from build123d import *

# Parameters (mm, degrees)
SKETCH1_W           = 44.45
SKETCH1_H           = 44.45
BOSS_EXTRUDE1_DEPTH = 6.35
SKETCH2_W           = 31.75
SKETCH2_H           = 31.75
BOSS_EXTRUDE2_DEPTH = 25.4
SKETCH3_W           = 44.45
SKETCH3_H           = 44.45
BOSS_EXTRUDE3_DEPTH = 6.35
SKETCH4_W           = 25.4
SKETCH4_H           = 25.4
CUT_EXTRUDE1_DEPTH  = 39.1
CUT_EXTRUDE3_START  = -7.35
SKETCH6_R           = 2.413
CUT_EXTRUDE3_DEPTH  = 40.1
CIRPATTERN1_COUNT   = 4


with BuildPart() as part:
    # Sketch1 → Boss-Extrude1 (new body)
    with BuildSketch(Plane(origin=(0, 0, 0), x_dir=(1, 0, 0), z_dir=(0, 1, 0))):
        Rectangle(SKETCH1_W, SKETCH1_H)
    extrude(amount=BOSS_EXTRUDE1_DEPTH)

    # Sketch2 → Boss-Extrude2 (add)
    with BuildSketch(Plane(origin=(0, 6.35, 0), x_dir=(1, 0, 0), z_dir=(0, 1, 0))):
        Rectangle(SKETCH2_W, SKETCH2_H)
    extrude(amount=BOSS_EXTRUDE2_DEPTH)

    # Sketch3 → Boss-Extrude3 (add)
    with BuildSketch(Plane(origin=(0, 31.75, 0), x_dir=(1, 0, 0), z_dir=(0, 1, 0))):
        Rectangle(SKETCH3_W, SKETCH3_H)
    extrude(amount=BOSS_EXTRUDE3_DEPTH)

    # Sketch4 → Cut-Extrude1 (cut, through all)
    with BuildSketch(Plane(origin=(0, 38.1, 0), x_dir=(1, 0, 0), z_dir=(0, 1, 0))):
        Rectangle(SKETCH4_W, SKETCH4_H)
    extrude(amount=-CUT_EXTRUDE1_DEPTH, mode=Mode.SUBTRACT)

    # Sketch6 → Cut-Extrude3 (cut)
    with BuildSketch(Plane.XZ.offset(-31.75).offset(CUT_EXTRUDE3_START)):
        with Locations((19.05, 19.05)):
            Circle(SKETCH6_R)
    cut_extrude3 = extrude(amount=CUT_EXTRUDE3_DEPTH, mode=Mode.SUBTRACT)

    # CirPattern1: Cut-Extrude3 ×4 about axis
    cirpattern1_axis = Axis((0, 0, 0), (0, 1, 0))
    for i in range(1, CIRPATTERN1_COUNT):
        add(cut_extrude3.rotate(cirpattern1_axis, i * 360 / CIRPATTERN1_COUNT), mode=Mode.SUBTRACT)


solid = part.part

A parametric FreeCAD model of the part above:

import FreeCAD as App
import Part
import Sketcher
from FreeCAD import Vector
Q = App.Units.Quantity

doc = App.newDocument("Part")
params = doc.addObject("Spreadsheet::Sheet", "Params")
for row, (alias, value) in enumerate([
    ("sketch1_width", "1.75 in"),
    ("pad1_length", "0.25 in"),
    ("sketch2_width", "1.25 in"),
    ("pad2_length", "1 in"),
    ("sketch3_width", "1.75 in"),
    ("pad3_length", "0.25 in"),
    ("sketch4_width", "1 in"),
    ("sketch5_diameter", "0.19 in"),
    ("pocket2_length", "40.1 mm"),
], start=1):
    params.set(f"A{row}", alias)
    params.set(f"B{row}", "=" + value)
    params.setAlias(f"B{row}", alias)

body = doc.addObject("PartDesign::Body", "Body")

# Sketch on XZ plane
sketch1 = doc.addObject("Sketcher::SketchObject", "Sketch")
body.addObject(sketch1)
sketch1.AttachmentSupport = (doc.XZ_Plane, [""])
sketch1.MapMode = "FlatFace"
sketch1.addGeometry(Part.LineSegment(Vector(-22, -22, 0), Vector(-22, 22, 0)), False)
sketch1.addGeometry(Part.LineSegment(Vector(-22, 22, 0), Vector(22, 22, 0)), False)
sketch1.addGeometry(Part.LineSegment(Vector(22, 22, 0), Vector(22, -22, 0)), False)
sketch1.addGeometry(Part.LineSegment(Vector(22, -22, 0), Vector(-22, -22, 0)), False)
sketch1.addConstraint(Sketcher.Constraint("Coincident", 0, 2, 1, 1))
sketch1.addConstraint(Sketcher.Constraint("Coincident", 1, 2, 2, 1))
sketch1.addConstraint(Sketcher.Constraint("Coincident", 2, 2, 3, 1))
sketch1.addConstraint(Sketcher.Constraint("Coincident", 3, 2, 0, 1))
sketch1.addConstraint(Sketcher.Constraint("Vertical", 0))
sketch1.addConstraint(Sketcher.Constraint("Horizontal", 1))
sketch1.addConstraint(Sketcher.Constraint("Vertical", 2))
sketch1.addConstraint(Sketcher.Constraint("Horizontal", 3))
sketch1.addConstraint(Sketcher.Constraint("Symmetric", 0, 2, 2, 2, -1, 1))
sketch1.addConstraint(Sketcher.Constraint("Equal", 3, 0))
sketch1.addConstraint(Sketcher.Constraint("DistanceX", 1, 1, 1, 2, Q("1.75 in")))
sketch1.setExpression("Constraints[10]", "Params.sketch1_width")
pad1 = doc.addObject("PartDesign::Pad", "Pad")
body.addObject(pad1)
pad1.Profile = sketch1
pad1.setExpression("Length", "Params.pad1_length")
pad1.Reversed = True

# Sketch on XZ plane
sketch2 = doc.addObject("Sketcher::SketchObject", "Sketch001")
body.addObject(sketch2)
sketch2.AttachmentSupport = (doc.XZ_Plane, [""])
sketch2.MapMode = "FlatFace"
sketch2.AttachmentOffset = App.Placement(Vector(0, 0, -0.25 * 25.4), App.Rotation())
sketch2.addGeometry(Part.LineSegment(Vector(-16, -16, 0), Vector(-16, 16, 0)), False)
sketch2.addGeometry(Part.LineSegment(Vector(-16, 16, 0), Vector(16, 16, 0)), False)
sketch2.addGeometry(Part.LineSegment(Vector(16, 16, 0), Vector(16, -16, 0)), False)
sketch2.addGeometry(Part.LineSegment(Vector(16, -16, 0), Vector(-16, -16, 0)), False)
sketch2.addConstraint(Sketcher.Constraint("Coincident", 0, 2, 1, 1))
sketch2.addConstraint(Sketcher.Constraint("Coincident", 1, 2, 2, 1))
sketch2.addConstraint(Sketcher.Constraint("Coincident", 2, 2, 3, 1))
sketch2.addConstraint(Sketcher.Constraint("Coincident", 3, 2, 0, 1))
sketch2.addConstraint(Sketcher.Constraint("Vertical", 0))
sketch2.addConstraint(Sketcher.Constraint("Horizontal", 1))
sketch2.addConstraint(Sketcher.Constraint("Vertical", 2))
sketch2.addConstraint(Sketcher.Constraint("Horizontal", 3))
sketch2.addConstraint(Sketcher.Constraint("Symmetric", 0, 2, 2, 2, -1, 1))
sketch2.addConstraint(Sketcher.Constraint("Equal", 3, 0))
sketch2.addConstraint(Sketcher.Constraint("DistanceX", 1, 1, 1, 2, Q("1.25 in")))
sketch2.setExpression("Constraints[10]", "Params.sketch2_width")
pad2 = doc.addObject("PartDesign::Pad", "Pad001")
body.addObject(pad2)
pad2.Profile = sketch2
pad2.setExpression("Length", "Params.pad2_length")
pad2.Reversed = True

# Sketch on XZ plane
sketch3 = doc.addObject("Sketcher::SketchObject", "Sketch002")
body.addObject(sketch3)
sketch3.AttachmentSupport = (doc.XZ_Plane, [""])
sketch3.MapMode = "FlatFace"
sketch3.AttachmentOffset = App.Placement(Vector(0, 0, -1.25 * 25.4), App.Rotation())
sketch3.addGeometry(Part.LineSegment(Vector(-22, -22, 0), Vector(-22, 22, 0)), False)
sketch3.addGeometry(Part.LineSegment(Vector(-22, 22, 0), Vector(22, 22, 0)), False)
sketch3.addGeometry(Part.LineSegment(Vector(22, 22, 0), Vector(22, -22, 0)), False)
sketch3.addGeometry(Part.LineSegment(Vector(22, -22, 0), Vector(-22, -22, 0)), False)
sketch3.addConstraint(Sketcher.Constraint("Coincident", 0, 2, 1, 1))
sketch3.addConstraint(Sketcher.Constraint("Coincident", 1, 2, 2, 1))
sketch3.addConstraint(Sketcher.Constraint("Coincident", 2, 2, 3, 1))
sketch3.addConstraint(Sketcher.Constraint("Coincident", 3, 2, 0, 1))
sketch3.addConstraint(Sketcher.Constraint("Vertical", 0))
sketch3.addConstraint(Sketcher.Constraint("Horizontal", 1))
sketch3.addConstraint(Sketcher.Constraint("Vertical", 2))
sketch3.addConstraint(Sketcher.Constraint("Horizontal", 3))
sketch3.addConstraint(Sketcher.Constraint("Symmetric", 0, 2, 2, 2, -1, 1))
sketch3.addConstraint(Sketcher.Constraint("Equal", 3, 0))
sketch3.addConstraint(Sketcher.Constraint("DistanceX", 1, 1, 1, 2, Q("1.75 in")))
sketch3.setExpression("Constraints[10]", "Params.sketch3_width")
pad3 = doc.addObject("PartDesign::Pad", "Pad002")
body.addObject(pad3)
pad3.Profile = sketch3
pad3.setExpression("Length", "Params.pad3_length")
pad3.Reversed = True

# Sketch on XZ plane
sketch4 = doc.addObject("Sketcher::SketchObject", "Sketch003")
body.addObject(sketch4)
sketch4.AttachmentSupport = (doc.XZ_Plane, [""])
sketch4.MapMode = "FlatFace"
sketch4.AttachmentOffset = App.Placement(Vector(0, 0, -1.5 * 25.4), App.Rotation())
sketch4.addGeometry(Part.LineSegment(Vector(-13, -13, 0), Vector(-13, 13, 0)), False)
sketch4.addGeometry(Part.LineSegment(Vector(-13, 13, 0), Vector(13, 13, 0)), False)
sketch4.addGeometry(Part.LineSegment(Vector(13, 13, 0), Vector(13, -13, 0)), False)
sketch4.addGeometry(Part.LineSegment(Vector(13, -13, 0), Vector(-13, -13, 0)), False)
sketch4.addConstraint(Sketcher.Constraint("Coincident", 0, 2, 1, 1))
sketch4.addConstraint(Sketcher.Constraint("Coincident", 1, 2, 2, 1))
sketch4.addConstraint(Sketcher.Constraint("Coincident", 2, 2, 3, 1))
sketch4.addConstraint(Sketcher.Constraint("Coincident", 3, 2, 0, 1))
sketch4.addConstraint(Sketcher.Constraint("Vertical", 0))
sketch4.addConstraint(Sketcher.Constraint("Horizontal", 1))
sketch4.addConstraint(Sketcher.Constraint("Vertical", 2))
sketch4.addConstraint(Sketcher.Constraint("Horizontal", 3))
sketch4.addConstraint(Sketcher.Constraint("Symmetric", 0, 2, 2, 2, -1, 1))
sketch4.addConstraint(Sketcher.Constraint("Equal", 3, 0))
sketch4.addConstraint(Sketcher.Constraint("DistanceX", 1, 1, 1, 2, Q("1 in")))
sketch4.setExpression("Constraints[10]", "Params.sketch4_width")
pocket1 = doc.addObject("PartDesign::Pocket", "Pocket")
body.addObject(pocket1)
pocket1.Profile = sketch4
pocket1.Type = "ThroughAll"
pocket1.Reversed = True

# Sketch on XZ plane
sketch5 = doc.addObject("Sketcher::SketchObject", "Sketch004")
body.addObject(sketch5)
sketch5.AttachmentSupport = (doc.XZ_Plane, [""])
sketch5.MapMode = "FlatFace"
sketch5.AttachmentOffset = App.Placement(Vector(0, 0, -39.1), App.Rotation())
sketch5.addGeometry(Part.Circle(Vector(19.1, 19.1, 0), Vector(0, 0, 1), 2.4), False)
sketch5.addConstraint(Sketcher.Constraint("Diameter", 0, Q("0.19 in")))
sketch5.addConstraint(Sketcher.Constraint("DistanceX", -1, 1, 0, 3, Q("0.75 in")))
sketch5.addConstraint(Sketcher.Constraint("DistanceY", -1, 1, 0, 3, Q("0.75 in")))
sketch5.setExpression("Constraints[0]", "Params.sketch5_diameter")
pocket2 = doc.addObject("PartDesign::Pocket", "Pocket001")
body.addObject(pocket2)
pocket2.Profile = sketch5
pocket2.setExpression("Length", "Params.pocket2_length")
pocket2.Reversed = True
doc.recompute()

polarpattern = doc.addObject("PartDesign::PolarPattern", "PolarPattern")
body.addObject(polarpattern)
polarpattern.Originals = [pocket2]
polarpattern.Axis = (doc.Y_Axis, [""])
polarpattern.Angle = 360
polarpattern.Occurrences = 4
body.Tip = polarpattern

doc.recompute()
